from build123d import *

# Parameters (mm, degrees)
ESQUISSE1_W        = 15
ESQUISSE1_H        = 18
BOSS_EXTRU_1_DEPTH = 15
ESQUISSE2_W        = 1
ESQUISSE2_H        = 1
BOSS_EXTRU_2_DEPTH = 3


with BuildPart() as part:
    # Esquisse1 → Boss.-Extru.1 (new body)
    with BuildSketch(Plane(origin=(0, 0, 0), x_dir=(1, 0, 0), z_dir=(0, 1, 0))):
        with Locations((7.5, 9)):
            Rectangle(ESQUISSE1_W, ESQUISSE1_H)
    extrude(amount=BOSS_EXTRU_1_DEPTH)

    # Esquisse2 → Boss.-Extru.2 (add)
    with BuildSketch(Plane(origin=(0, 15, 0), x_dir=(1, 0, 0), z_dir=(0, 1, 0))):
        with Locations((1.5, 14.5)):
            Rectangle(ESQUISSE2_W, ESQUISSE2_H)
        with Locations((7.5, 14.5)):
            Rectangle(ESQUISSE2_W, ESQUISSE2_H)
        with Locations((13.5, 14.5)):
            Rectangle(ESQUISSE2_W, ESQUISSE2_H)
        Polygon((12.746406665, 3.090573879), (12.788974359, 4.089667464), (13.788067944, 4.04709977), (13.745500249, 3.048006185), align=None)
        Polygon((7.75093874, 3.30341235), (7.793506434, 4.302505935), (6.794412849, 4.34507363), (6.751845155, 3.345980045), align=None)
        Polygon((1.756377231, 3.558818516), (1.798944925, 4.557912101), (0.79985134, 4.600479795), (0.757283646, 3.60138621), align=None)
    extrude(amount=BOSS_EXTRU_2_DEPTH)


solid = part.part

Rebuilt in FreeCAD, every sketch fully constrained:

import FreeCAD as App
import Part
import Sketcher
from FreeCAD import Vector
Q = App.Units.Quantity


def add_polygon(sketch, points):
    """Adds a closed chain of lines whose ends are joined by coincident constraints."""
    first, n = sketch.GeometryCount, len(points)
    for a, b in zip(points, points[1:] + points[:1]):
        sketch.addGeometry(Part.LineSegment(App.Vector(*a, 0), App.Vector(*b, 0)), False)
    for i in range(n):
        sketch.addConstraint(Sketcher.Constraint("Coincident", first + i, 2, first + (i + 1) % n, 1))

doc = App.newDocument("Part")
body = doc.addObject("PartDesign::Body", "Body")

# Sketch on XZ plane
sketch1 = body.newObject("Sketcher::SketchObject", "Sketch")
sketch1.AttachmentSupport = (doc.getObject("XZ_Plane"), [""])
sketch1.MapMode = "FlatFace"
add_polygon(sketch1, [(0, -18), (0, 0), (15, 0), (15, -18)])  # lines 0-3
sketch1.addConstraint([
    Sketcher.Constraint("Vertical", 0),
    Sketcher.Constraint("Horizontal", 1),
    Sketcher.Constraint("Vertical", 2),
    Sketcher.Constraint("Horizontal", 3),
    Sketcher.Constraint("Coincident", 0, 2, -1, 1),
    Sketcher.Constraint("DistanceX", 1, 1, 1, 2, Q("15 mm")),
    Sketcher.Constraint("DistanceY", 0, 1, 0, 2, Q("18 mm")),
])
pad1 = body.newObject("PartDesign::Pad", "Pad")
pad1.Profile = sketch1
pad1.Length = 15
pad1.Reversed = True

# Sketch on XZ plane
sketch2 = body.newObject("Sketcher::SketchObject", "Sketch001")
sketch2.AttachmentSupport = (doc.getObject("XZ_Plane"), [""])
sketch2.MapMode = "FlatFace"
sketch2.AttachmentOffset = App.Placement(Vector(0, 0, -15), App.Rotation())
add_polygon(sketch2, [(1, -15), (1, -14), (2, -14), (2, -15)])  # lines 0-3
add_polygon(sketch2, [(7, -15), (7, -14), (8, -14), (8, -15)])  # lines 4-7
add_polygon(sketch2, [(13, -15), (13, -14), (14, -14), (14, -15)])  # lines 8-11
add_polygon(sketch2, [(12.8, -4.1), (12.7, -3.1), (13.7, -3), (13.8, -4)])  # lines 12-15
add_polygon(sketch2, [(7.8, -3.3), (7.8, -4.3), (6.8, -4.3), (6.8, -3.3)])  # lines 16-19
add_polygon(sketch2, [(1.8, -3.6), (1.8, -4.6), (0.8, -4.6), (0.8, -3.6)])  # lines 20-23
sketch2.addConstraint([
    Sketcher.Constraint("Vertical", 0),
    Sketcher.Constraint("Horizontal", 1),
    Sketcher.Constraint("Vertical", 2),
    Sketcher.Constraint("Horizontal", 3),
    Sketcher.Constraint("Vertical", 4),
    Sketcher.Constraint("Horizontal", 5),
    Sketcher.Constraint("Vertical", 6),
    Sketcher.Constraint("Horizontal", 7),
    Sketcher.Constraint("Vertical", 8),
    Sketcher.Constraint("Horizontal", 9),
    Sketcher.Constraint("Vertical", 10),
    Sketcher.Constraint("Horizontal", 11),
    Sketcher.Constraint("Perpendicular", 12, 13),
    Sketcher.Constraint("Perpendicular", 13, 14),
    Sketcher.Constraint("Perpendicular", 14, 15),
    Sketcher.Constraint("Perpendicular", 15, 16),
    Sketcher.Constraint("Perpendicular", 16, 17),
    Sketcher.Constraint("Perpendicular", 17, 18),
    Sketcher.Constraint("Perpendicular", 18, 19),
    Sketcher.Constraint("Perpendicular", 19, 20),
    Sketcher.Constraint("Perpendicular", 20, 21),
    Sketcher.Constraint("Perpendicular", 21, 22),
    Sketcher.Constraint("Perpendicular", 22, 23),
    Sketcher.Constraint("Horizontal", 1, 2, 4, 2),
    Sketcher.Constraint("Horizontal", 3, 2, 6, 2),
    Sketcher.Constraint("Horizontal", 5, 2, 8, 2),
    Sketcher.Constraint("Horizontal", 7, 2, 10, 2),
    Sketcher.Constraint("Equal", 3, 5),
    Sketcher.Constraint("Equal", 7, 9),
    Sketcher.Constraint("Equal", 11, 0),
    Sketcher.Constraint("Equal", 12, 13),
    Sketcher.Constraint("Equal", 15, 16),
    Sketcher.Constraint("Equal", 16, 17),
    Sketcher.Constraint("Equal", 19, 20),
    Sketcher.Constraint("Equal", 20, 21),
    Sketcher.Constraint("DistanceX", 1, 1, 1, 2, Q("1 mm")),
    Sketcher.Constraint("Distance", 12, Q("1 mm")),
    Sketcher.Constraint("DistanceX", -1, 1, 0, 2, Q("1 mm")),
    Sketcher.Constraint("DistanceY", 0, 2, -1, 1, Q("14 mm")),
    Sketcher.Constraint("DistanceX", -1, 1, 4, 2, Q("7 mm")),
    Sketcher.Constraint("DistanceX", -1, 1, 8, 2, Q("13 mm")),
    Sketcher.Constraint("DistanceX", -1, 1, 13, 2, Q("13.7455 mm")),
    Sketcher.Constraint("DistanceY", 14, 2, -1, 1, Q("4.0471 mm")),
    Sketcher.Constraint("DistanceX", 16, 2, 12, 2, Q("4.9529 mm")),
    Sketcher.Constraint("DistanceY", 16, 2, 13, 2, Q("1.2545 mm")),
    Sketcher.Constraint("DistanceX", 20, 2, 18, 2, Q("4.9529 mm")),
    Sketcher.Constraint("DistanceY", 20, 2, 19, 2, Q("1.2545 mm")),
    Sketcher.Constraint("DistanceY", 18, 2, -1, 1, Q("3.34598 mm")),
])
pad2 = body.newObject("PartDesign::Pad", "Pad001")
pad2.Profile = sketch2
pad2.Length = 3
pad2.Reversed = True

doc.recompute()
